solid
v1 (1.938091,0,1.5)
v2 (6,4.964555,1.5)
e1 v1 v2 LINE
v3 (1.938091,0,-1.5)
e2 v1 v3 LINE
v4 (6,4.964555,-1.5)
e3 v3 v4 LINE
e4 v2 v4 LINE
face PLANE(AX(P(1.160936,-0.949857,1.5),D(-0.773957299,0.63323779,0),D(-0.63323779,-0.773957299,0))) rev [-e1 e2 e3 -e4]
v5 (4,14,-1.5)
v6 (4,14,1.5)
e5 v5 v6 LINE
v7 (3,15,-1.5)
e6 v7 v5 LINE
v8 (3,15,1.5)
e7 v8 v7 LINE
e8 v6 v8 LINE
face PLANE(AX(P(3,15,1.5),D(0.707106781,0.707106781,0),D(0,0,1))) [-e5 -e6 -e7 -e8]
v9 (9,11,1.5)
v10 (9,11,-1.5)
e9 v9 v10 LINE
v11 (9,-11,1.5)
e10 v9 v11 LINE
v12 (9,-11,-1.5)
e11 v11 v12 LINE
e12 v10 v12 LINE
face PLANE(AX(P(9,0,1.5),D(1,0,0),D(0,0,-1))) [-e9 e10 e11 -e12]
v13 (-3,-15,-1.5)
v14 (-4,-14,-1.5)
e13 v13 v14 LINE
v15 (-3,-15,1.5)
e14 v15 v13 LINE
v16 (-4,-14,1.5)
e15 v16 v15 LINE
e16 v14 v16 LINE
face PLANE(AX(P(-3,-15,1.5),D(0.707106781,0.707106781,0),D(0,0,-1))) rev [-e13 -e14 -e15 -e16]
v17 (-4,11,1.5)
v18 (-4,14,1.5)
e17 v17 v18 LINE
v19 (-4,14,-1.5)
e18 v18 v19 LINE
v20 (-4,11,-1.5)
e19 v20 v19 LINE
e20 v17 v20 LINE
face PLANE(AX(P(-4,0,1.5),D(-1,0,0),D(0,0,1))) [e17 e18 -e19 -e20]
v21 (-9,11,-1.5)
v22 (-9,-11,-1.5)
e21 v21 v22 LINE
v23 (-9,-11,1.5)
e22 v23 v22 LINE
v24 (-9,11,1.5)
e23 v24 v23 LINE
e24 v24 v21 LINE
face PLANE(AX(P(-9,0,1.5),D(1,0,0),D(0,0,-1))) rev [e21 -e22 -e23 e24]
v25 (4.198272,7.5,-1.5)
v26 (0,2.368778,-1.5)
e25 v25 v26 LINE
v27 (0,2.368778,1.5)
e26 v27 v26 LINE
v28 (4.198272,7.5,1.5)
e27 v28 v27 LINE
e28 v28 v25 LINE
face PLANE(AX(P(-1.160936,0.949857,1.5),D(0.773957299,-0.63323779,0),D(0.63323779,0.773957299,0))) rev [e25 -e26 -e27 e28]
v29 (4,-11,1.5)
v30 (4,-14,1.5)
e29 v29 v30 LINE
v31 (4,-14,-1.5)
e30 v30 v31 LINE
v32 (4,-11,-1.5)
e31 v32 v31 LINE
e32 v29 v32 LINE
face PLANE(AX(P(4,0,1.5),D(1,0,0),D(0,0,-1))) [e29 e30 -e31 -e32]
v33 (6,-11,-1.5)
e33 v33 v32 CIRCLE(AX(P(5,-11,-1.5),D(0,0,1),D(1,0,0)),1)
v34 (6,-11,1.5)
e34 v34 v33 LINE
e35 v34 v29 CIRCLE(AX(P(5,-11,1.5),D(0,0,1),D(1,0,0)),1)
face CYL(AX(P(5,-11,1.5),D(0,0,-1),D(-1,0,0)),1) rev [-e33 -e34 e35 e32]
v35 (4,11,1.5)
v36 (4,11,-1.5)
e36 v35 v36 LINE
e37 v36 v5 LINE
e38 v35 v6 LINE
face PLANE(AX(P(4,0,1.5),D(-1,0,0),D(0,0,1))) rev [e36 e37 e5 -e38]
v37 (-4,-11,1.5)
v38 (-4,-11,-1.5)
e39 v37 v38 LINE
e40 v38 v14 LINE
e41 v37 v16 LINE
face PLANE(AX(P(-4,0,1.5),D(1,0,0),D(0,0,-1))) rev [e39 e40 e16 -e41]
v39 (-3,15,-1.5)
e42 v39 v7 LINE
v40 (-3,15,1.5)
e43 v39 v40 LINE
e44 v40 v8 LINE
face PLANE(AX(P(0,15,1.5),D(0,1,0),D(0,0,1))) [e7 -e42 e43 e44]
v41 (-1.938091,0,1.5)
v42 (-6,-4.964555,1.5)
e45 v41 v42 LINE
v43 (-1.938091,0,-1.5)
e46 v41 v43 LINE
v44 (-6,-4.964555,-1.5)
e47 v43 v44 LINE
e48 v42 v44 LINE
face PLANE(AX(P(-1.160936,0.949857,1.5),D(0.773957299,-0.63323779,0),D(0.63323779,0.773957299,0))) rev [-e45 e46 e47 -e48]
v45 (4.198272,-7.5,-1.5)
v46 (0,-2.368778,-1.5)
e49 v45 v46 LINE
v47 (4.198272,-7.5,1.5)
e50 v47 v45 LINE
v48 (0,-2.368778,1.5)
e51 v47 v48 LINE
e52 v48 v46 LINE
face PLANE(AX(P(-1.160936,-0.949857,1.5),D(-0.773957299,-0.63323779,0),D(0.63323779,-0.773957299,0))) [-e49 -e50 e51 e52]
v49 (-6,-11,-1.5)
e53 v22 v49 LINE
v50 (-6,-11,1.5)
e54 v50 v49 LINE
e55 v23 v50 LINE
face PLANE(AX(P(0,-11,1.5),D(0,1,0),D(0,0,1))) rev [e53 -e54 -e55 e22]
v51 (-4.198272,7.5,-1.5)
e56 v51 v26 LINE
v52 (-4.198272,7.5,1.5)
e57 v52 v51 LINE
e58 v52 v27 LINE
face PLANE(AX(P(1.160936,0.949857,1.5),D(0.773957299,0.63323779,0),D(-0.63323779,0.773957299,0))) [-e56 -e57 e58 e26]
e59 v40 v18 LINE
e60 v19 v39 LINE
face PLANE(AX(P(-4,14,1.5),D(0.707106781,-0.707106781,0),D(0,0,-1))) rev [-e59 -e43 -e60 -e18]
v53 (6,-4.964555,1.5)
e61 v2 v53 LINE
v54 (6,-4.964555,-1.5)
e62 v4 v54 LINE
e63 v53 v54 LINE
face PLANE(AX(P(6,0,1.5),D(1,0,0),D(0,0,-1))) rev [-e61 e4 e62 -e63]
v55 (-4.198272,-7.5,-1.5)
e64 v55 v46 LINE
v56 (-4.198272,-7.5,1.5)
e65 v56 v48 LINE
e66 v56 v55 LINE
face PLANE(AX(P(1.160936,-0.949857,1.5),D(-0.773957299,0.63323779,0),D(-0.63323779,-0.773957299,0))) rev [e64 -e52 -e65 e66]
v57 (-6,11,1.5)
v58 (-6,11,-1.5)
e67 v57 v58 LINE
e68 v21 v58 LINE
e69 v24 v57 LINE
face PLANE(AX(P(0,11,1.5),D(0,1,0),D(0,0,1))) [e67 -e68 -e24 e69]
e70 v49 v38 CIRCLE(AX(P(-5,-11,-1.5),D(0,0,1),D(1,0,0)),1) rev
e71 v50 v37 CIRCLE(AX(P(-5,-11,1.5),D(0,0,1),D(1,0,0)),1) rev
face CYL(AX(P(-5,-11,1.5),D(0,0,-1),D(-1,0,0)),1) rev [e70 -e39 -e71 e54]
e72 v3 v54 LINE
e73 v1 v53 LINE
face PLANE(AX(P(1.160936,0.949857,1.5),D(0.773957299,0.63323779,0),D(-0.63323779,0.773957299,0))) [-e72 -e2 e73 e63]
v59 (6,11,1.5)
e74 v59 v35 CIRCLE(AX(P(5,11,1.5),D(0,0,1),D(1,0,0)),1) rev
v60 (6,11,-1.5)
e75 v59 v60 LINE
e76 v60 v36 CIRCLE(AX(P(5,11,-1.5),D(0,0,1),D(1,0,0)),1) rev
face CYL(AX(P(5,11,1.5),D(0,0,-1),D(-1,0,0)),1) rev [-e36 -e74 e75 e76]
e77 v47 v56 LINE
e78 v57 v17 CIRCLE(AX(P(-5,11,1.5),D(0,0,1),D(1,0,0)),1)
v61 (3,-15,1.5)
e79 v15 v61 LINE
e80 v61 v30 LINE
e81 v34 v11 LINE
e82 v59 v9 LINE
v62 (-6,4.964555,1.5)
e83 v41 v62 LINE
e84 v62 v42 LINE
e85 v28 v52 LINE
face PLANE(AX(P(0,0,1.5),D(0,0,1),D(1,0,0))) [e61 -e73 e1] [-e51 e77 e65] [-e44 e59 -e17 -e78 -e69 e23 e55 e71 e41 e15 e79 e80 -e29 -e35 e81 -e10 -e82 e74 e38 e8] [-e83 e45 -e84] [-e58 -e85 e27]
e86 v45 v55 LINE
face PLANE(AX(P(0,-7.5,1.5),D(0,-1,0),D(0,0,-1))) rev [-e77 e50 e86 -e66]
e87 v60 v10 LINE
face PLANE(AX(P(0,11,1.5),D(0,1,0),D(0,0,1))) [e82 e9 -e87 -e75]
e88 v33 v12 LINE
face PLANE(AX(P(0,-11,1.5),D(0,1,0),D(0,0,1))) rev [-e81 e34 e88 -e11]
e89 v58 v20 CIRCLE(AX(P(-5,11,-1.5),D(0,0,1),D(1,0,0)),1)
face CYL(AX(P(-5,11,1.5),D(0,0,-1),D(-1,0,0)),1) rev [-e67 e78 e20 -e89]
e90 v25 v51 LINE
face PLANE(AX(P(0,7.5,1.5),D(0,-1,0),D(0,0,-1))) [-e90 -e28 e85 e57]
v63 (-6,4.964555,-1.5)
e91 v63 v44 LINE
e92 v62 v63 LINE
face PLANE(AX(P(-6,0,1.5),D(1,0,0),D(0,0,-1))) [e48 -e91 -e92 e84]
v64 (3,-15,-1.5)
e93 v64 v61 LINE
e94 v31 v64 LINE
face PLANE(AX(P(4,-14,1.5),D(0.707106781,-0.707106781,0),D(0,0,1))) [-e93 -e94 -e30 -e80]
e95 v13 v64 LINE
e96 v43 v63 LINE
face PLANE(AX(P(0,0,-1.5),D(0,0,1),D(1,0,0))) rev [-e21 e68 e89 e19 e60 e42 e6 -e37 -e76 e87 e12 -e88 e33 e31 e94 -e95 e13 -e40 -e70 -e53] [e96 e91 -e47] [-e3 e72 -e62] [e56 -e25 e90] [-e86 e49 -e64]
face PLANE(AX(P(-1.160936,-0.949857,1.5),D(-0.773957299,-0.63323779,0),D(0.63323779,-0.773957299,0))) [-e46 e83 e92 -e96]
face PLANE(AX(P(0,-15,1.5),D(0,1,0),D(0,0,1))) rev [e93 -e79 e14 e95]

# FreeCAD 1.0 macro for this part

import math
import FreeCAD as App
import Part
import Sketcher
from FreeCAD import Vector


def edges_at(feature, points):
    """Names of the edges that pass closest to the given points."""
    edges = feature.Shape.Edges
    near = lambda p: min(range(len(edges)), key=lambda i: edges[i].distToShape(Part.Vertex(*p))[0])
    return sorted({f"Edge{near(p) + 1}" for p in points})


def add_polygon(sketch, points):
    """Adds a closed chain of lines whose ends are joined by coincident constraints."""
    first, n = sketch.GeometryCount, len(points)
    for a, b in zip(points, points[1:] + points[:1]):
        sketch.addGeometry(Part.LineSegment(App.Vector(*a, 0), App.Vector(*b, 0)), False)
    for i in range(n):
        sketch.addConstraint(Sketcher.Constraint("Coincident", first + i, 2, first + (i + 1) % n, 1))

doc = App.newDocument("Part")
body = doc.addObject("PartDesign::Body", "Body")

sketch1 = body.newObject("Sketcher::SketchObject", "Sketch")
sketch1.AttachmentSupport = (doc.getObject("XY_Plane"), [""])
sketch1.MapMode = "FlatFace"
sketch1.addGeometry(Part.LineSegment(Vector(-4, 15, 0), Vector(-4, 11, 0)), False)
sketch1.addGeometry(Part.ArcOfCircle(Part.Circle(Vector(-5, 11, 0), Vector(0, 0, 1), 1), math.radians(180), math.radians(360)), False)
sketch1.addGeometry(Part.LineSegment(Vector(-6, 11, 0), Vector(-9, 11, 0)), False)
sketch1.addGeometry(Part.LineSegment(Vector(-9, 11, 0), Vector(-9, -11, 0)), False)
sketch1.addGeometry(Part.LineSegment(Vector(-9, -11, 0), Vector(-6, -11, 0)), False)
sketch1.addGeometry(Part.ArcOfCircle(Part.Circle(Vector(-5, -11, 0), Vector(0, 0, 1), 1), math.radians(0), math.radians(180)), False)
sketch1.addGeometry(Part.LineSegment(Vector(-4, -11, 0), Vector(-4, -15, 0)), False)
sketch1.addGeometry(Part.LineSegment(Vector(-4, -15, 0), Vector(4, -15, 0)), False)
sketch1.addGeometry(Part.LineSegment(Vector(4, -15, 0), Vector(4, -11, 0)), False)
sketch1.addGeometry(Part.ArcOfCircle(Part.Circle(Vector(5, -11, 0), Vector(0, 0, 1), 1), math.radians(0), math.radians(180)), False)
sketch1.addGeometry(Part.LineSegment(Vector(6, -11, 0), Vector(9, -11, 0)), False)
sketch1.addGeometry(Part.LineSegment(Vector(9, -11, 0), Vector(9, 11, 0)), False)
sketch1.addGeometry(Part.LineSegment(Vector(9, 11, 0), Vector(6, 11, 0)), False)
sketch1.addGeometry(Part.ArcOfCircle(Part.Circle(Vector(5, 11, 0), Vector(0, 0, 1), 1), math.radians(180), math.radians(360)), False)
sketch1.addGeometry(Part.LineSegment(Vector(4, 11, 0), Vector(4, 15, 0)), False)
sketch1.addGeometry(Part.LineSegment(Vector(4, 15, 0), Vector(-4, 15, 0)), False)
add_polygon(sketch1, [(-4.198272, -7.5), (0, -2.368778), (4.198272, -7.5)])
add_polygon(sketch1, [(-6, -4.964555), (-6, 4.964555), (-1.938091, 0)])
add_polygon(sketch1, [(6, -4.964555), (1.938091, 0), (6, 4.964555)])
add_polygon(sketch1, [(0, 2.368778), (-4.198272, 7.5), (4.198272, 7.5)])
sketch1.addConstraint(Sketcher.Constraint("Tangent", 0, 2, 1, 2))
sketch1.addConstraint(Sketcher.Constraint("Coincident", 1, 1, 2, 1))
sketch1.addConstraint(Sketcher.Constraint("Coincident", 2, 2, 3, 1))
sketch1.addConstraint(Sketcher.Constraint("Coincident", 3, 2, 4, 1))
sketch1.addConstraint(Sketcher.Constraint("Coincident", 4, 2, 5, 2))
sketch1.addConstraint(Sketcher.Constraint("Tangent", 5, 1, 6, 1))
sketch1.addConstraint(Sketcher.Constraint("Coincident", 6, 2, 7, 1))
sketch1.addConstraint(Sketcher.Constraint("Coincident", 7, 2, 8, 1))
sketch1.addConstraint(Sketcher.Constraint("Tangent", 8, 2, 9, 2))
sketch1.addConstraint(Sketcher.Constraint("Coincident", 9, 1, 10, 1))
sketch1.addConstraint(Sketcher.Constraint("Coincident", 10, 2, 11, 1))
sketch1.addConstraint(Sketcher.Constraint("Coincident", 11, 2, 12, 1))
sketch1.addConstraint(Sketcher.Constraint("Coincident", 12, 2, 13, 2))
sketch1.addConstraint(Sketcher.Constraint("Tangent", 13, 1, 14, 1))
sketch1.addConstraint(Sketcher.Constraint("Coincident", 14, 2, 15, 1))
sketch1.addConstraint(Sketcher.Constraint("Coincident", 15, 2, 0, 1))
sketch1.addConstraint(Sketcher.Constraint("Vertical", 0))
sketch1.addConstraint(Sketcher.Constraint("Horizontal", 2))
sketch1.addConstraint(Sketcher.Constraint("Vertical", 3))
sketch1.addConstraint(Sketcher.Constraint("Horizontal", 4))
sketch1.addConstraint(Sketcher.Constraint("Vertical", 6))
sketch1.addConstraint(Sketcher.Constraint("Horizontal", 7))
sketch1.addConstraint(Sketcher.Constraint("Vertical", 8))
sketch1.addConstraint(Sketcher.Constraint("Horizontal", 10))
sketch1.addConstraint(Sketcher.Constraint("Vertical", 11))
sketch1.addConstraint(Sketcher.Constraint("Horizontal", 12))
sketch1.addConstraint(Sketcher.Constraint("Vertical", 14))
sketch1.addConstraint(Sketcher.Constraint("Horizontal", 15))
sketch1.addConstraint(Sketcher.Constraint("Horizontal", 18))
sketch1.addConstraint(Sketcher.Constraint("Vertical", 19))
sketch1.addConstraint(Sketcher.Constraint("Vertical", 24))
sketch1.addConstraint(Sketcher.Constraint("Horizontal", 26))
sketch1.addConstraint(Sketcher.Constraint("Equal", 1, 5))
sketch1.addConstraint(Sketcher.Constraint("Equal", 5, 9))
sketch1.addConstraint(Sketcher.Constraint("Equal", 9, 13))
sketch1.addConstraint(Sketcher.Constraint("Symmetric", 1, 3, 9, 3, -1, 1))
sketch1.addConstraint(Sketcher.Constraint("Symmetric", 5, 3, 13, 3, -1, 1))
sketch1.addConstraint(Sketcher.Constraint("Symmetric", 2, 2, 10, 2, -1, 1))
sketch1.addConstraint(Sketcher.Constraint("Symmetric", 20, 2, 22, 2, -1, 1))
sketch1.addConstraint(Sketcher.Constraint("Symmetric", 21, 2, 23, 2, -1, 1))
sketch1.addConstraint(Sketcher.Constraint("Symmetric", 17, 2, 25, 2, -1, 1))
sketch1.addConstraint(Sketcher.Constraint("Symmetric", 16, 2, 27, 2, -1, 1))
sketch1.addConstraint(Sketcher.Constraint("Symmetric", 5, 3, 9, 3, -2))
sketch1.addConstraint(Sketcher.Constraint("PointOnObject", 16, 2, -2))
sketch1.addConstraint(Sketcher.Constraint("PointOnObject", 20, 2, -1))
sketch1.addConstraint(Sketcher.Constraint("Parallel", 17, 20))
sketch1.addConstraint(Sketcher.Constraint("Parallel", 16, 21))
sketch1.addConstraint(Sketcher.Constraint("Parallel", 20, 22))
sketch1.addConstraint(Sketcher.Constraint("Parallel", 23, 27))
sketch1.addConstraint(Sketcher.Constraint("Horizontal", 0, 2, 1, 1))
sketch1.addConstraint(Sketcher.Constraint("Horizontal", 9, 3, 3, 2))
sketch1.addConstraint(Sketcher.Constraint("Horizontal", 2, 2, 11, 2))
sketch1.addConstraint(Sketcher.Constraint("Horizontal", 19, 2, 23, 2))
sketch1.addConstraint(Sketcher.Constraint("Vertical", 4, 2, 19, 2))
sketch1.addConstraint(Sketcher.Constraint("Equal", 0, 6))
sketch1.addConstraint(Sketcher.Constraint("Radius", 1, 1.0))
sketch1.addConstraint(Sketcher.Constraint("DistanceX", 2, 2, 2, 1, 3.0))
sketch1.addConstraint(Sketcher.Constraint("DistanceX", 7, 1, 7, 2, 8.0))
sketch1.addConstraint(Sketcher.Constraint("DistanceY", 0, 2, 0, 1, 4.0))
sketch1.addConstraint(Sketcher.Constraint("DistanceY", 3, 2, 3, 1, 22.0))
sketch1.addConstraint(Sketcher.Constraint("DistanceY", 17, 2, -1, 1, 7.5))
sketch1.addConstraint(Sketcher.Constraint("DistanceY", 19, 1, 19, 2, 9.92911))
sketch1.addConstraint(Sketcher.Constraint("Distance", 16, 6.629851))
sketch1.addConstraint(Sketcher.Constraint("DistanceX", 18, 2, 18, 1, 8.396544))
pad1 = body.newObject("PartDesign::Pad", "Pad")
pad1.Profile = sketch1
pad1.Length = 3
pad1.Midplane = True
doc.recompute()

chamfer = body.newObject("PartDesign::Chamfer", "Chamfer")
chamfer.Base = (pad1, edges_at(pad1, [
    (-4, 15, 0),
    (4, 15, 0),
    (4, -15, 0),
    (-4, -15, 0),
]))
chamfer.Size = 1

doc.recompute()
